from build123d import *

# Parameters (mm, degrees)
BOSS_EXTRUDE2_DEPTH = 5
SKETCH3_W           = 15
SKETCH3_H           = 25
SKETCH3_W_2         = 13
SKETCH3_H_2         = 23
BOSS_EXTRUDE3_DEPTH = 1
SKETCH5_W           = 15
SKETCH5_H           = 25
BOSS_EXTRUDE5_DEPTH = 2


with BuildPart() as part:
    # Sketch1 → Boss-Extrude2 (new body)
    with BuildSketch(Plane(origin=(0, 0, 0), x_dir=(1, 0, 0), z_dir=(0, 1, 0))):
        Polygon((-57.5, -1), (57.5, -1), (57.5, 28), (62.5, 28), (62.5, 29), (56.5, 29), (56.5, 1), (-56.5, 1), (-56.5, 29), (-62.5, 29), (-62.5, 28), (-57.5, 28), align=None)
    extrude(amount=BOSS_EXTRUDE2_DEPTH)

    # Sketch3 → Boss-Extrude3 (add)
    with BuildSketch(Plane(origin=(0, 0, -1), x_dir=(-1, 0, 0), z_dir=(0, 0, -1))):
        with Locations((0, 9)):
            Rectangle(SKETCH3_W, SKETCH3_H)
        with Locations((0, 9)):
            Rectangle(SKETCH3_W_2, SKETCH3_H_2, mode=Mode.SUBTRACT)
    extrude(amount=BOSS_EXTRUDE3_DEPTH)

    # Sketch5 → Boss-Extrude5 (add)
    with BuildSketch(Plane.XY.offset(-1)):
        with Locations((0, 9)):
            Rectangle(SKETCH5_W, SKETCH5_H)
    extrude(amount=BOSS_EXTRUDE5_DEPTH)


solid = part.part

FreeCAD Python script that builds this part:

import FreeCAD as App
import Part
import Sketcher


def add_polygon(sketch, points):
    """Adds a closed chain of lines whose ends are joined by coincident constraints."""
    first, n = sketch.GeometryCount, len(points)
    for a, b in zip(points, points[1:] + points[:1]):
        sketch.addGeometry(Part.LineSegment(App.Vector(*a, 0), App.Vector(*b, 0)), False)
    for i in range(n):
        sketch.addConstraint(Sketcher.Constraint("Coincident", first + i, 2, first + (i + 1) % n, 1))

doc = App.newDocument("Part")
params = doc.addObject("Spreadsheet::Sheet", "Params")
for row, (alias, value) in enumerate([
    ("sketch1_width", "115 mm"),
    ("sketch1_width2", "5 mm"),
    ("sketch1_width3", "6 mm"),
    ("sketch1_height", "29 mm"),
    ("sketch1_height2", "1 mm"),
    ("pad1_length", "5 mm"),
    ("sketch2_width", "15 mm"),
    ("sketch2_width2", "13 mm"),
    ("sketch2_height", "25 mm"),
    ("sketch2_height2", "23 mm"),
    ("pad2_length", "1 mm"),
    ("sketch3_width", "15 mm"),
    ("sketch3_height", "25 mm"),
    ("pad3_length", "2 mm"),
], start=1):
    params.set(f"A{row}", alias)
    params.set(f"B{row}", "=" + value)
    params.setAlias(f"B{row}", alias)

body = doc.addObject("PartDesign::Body", "Body")

# Sketch on XZ plane
sketch1 = body.newObject("Sketcher::SketchObject", "Sketch")
sketch1.AttachmentSupport = (doc.getObject("XZ_Plane"), [""])
sketch1.MapMode = "FlatFace"
add_polygon(sketch1, [(-57.5, 1), (57.5, 1), (57.5, -28), (62.5, -28), (62.5, -29), (56.5, -29), (56.5, -1), (-56.5, -1), (-56.5, -29), (-62.5, -29), (-62.5, -28), (-57.5, -28)])  # lines 0-11
sketch1.addConstraint([
    Sketcher.Constraint("Horizontal", 0),
    Sketcher.Constraint("Vertical", 1),
    Sketcher.Constraint("Horizontal", 2),
    Sketcher.Constraint("Vertical", 3),
    Sketcher.Constraint("Horizontal", 4),
    Sketcher.Constraint("Vertical", 5),
    Sketcher.Constraint("Horizontal", 6),
    Sketcher.Constraint("Vertical", 7),
    Sketcher.Constraint("Horizontal", 8),
    Sketcher.Constraint("Vertical", 9),
    Sketcher.Constraint("Horizontal", 10),
    Sketcher.Constraint("Vertical", 11),
    Sketcher.Constraint("Symmetric", 4, 2, 7, 2, -2),
    Sketcher.Constraint("Symmetric", 2, 2, 9, 2, -2),
    Sketcher.Constraint("Equal", 2, 10),
    Sketcher.Constraint("DistanceX", 0, 1, 0, 2, 115.0),
    Sketcher.Constraint("DistanceX", 2, 1, 2, 2, 5.0),
    Sketcher.Constraint("DistanceX", 4, 2, 4, 1, 6.0),
    Sketcher.Constraint("DistanceY", 1, 2, 1, 1, 29.0),
    Sketcher.Constraint("DistanceY", 3, 2, 3, 1, 1.0),
    Sketcher.Constraint("DistanceY", 5, 1, 5, 2, 28.0),
    Sketcher.Constraint("DistanceY", -1, 1, 0, 2, 1.0),
])
sketch1.setExpression("Constraints[27]", "Params.sketch1_width")
sketch1.setExpression("Constraints[28]", "Params.sketch1_width2")
sketch1.setExpression("Constraints[29]", "Params.sketch1_width3")
sketch1.setExpression("Constraints[30]", "Params.sketch1_height")
sketch1.setExpression("Constraints[31]", "Params.sketch1_height2")
pad1 = body.newObject("PartDesign::Pad", "Pad")
pad1.Profile = sketch1
pad1.setExpression("Length", "Params.pad1_length")
pad1.Reversed = True

# Sketch on XY plane
sketch2 = body.newObject("Sketcher::SketchObject", "Sketch001")
sketch2.AttachmentSupport = (doc.getObject("XY_Plane"), [""])
sketch2.MapMode = "FlatFace"
sketch2.AttachmentOffset = App.Placement(App.Vector(0, 0, -1), App.Rotation())
add_polygon(sketch2, [(7.5, 21.5), (7.5, -3.5), (-7.5, -3.5), (-7.5, 21.5)])  # lines 0-3
add_polygon(sketch2, [(-6.5, -2.5), (6.5, -2.5), (6.5, 20.5), (-6.5, 20.5)])  # lines 4-7
sketch2.addConstraint([
    Sketcher.Constraint("Vertical", 0),
    Sketcher.Constraint("Horizontal", 1),
    Sketcher.Constraint("Vertical", 2),
    Sketcher.Constraint("Horizontal", 3),
    Sketcher.Constraint("Horizontal", 4),
    Sketcher.Constraint("Vertical", 5),
    Sketcher.Constraint("Horizontal", 6),
    Sketcher.Constraint("Vertical", 7),
    Sketcher.Constraint("DistanceX", 1, 2, 1, 1, 15.0),
    Sketcher.Constraint("DistanceX", 4, 1, 4, 2, 13.0),
    Sketcher.Constraint("DistanceY", 0, 2, 0, 1, 25.0),
    Sketcher.Constraint("DistanceY", 5, 1, 5, 2, 23.0),
    Sketcher.Constraint("DistanceX", 4, 2, 0, 2, 1.0),
    Sketcher.Constraint("DistanceY", 0, 2, 4, 2, 1.0),
    Sketcher.Constraint("DistanceX", -1, 1, 0, 2, 7.5),
    Sketcher.Constraint("DistanceY", 0, 2, -1, 1, 3.5),
])
sketch2.setExpression("Constraints[16]", "Params.sketch2_width")
sketch2.setExpression("Constraints[17]", "Params.sketch2_width2")
sketch2.setExpression("Constraints[18]", "Params.sketch2_height")
sketch2.setExpression("Constraints[19]", "Params.sketch2_height2")
pad2 = body.newObject("PartDesign::Pad", "Pad001")
pad2.Profile = sketch2
pad2.setExpression("Length", "Params.pad2_length")
pad2.Reversed = True

# Sketch on XY plane
sketch3 = body.newObject("Sketcher::SketchObject", "Sketch002")
sketch3.AttachmentSupport = (doc.getObject("XY_Plane"), [""])
sketch3.MapMode = "FlatFace"
sketch3.AttachmentOffset = App.Placement(App.Vector(0, 0, -1), App.Rotation())
add_polygon(sketch3, [(-7.5, 21.5), (-7.5, -3.5), (7.5, -3.5), (7.5, 21.5)])  # lines 0-3
sketch3.addConstraint([
    Sketcher.Constraint("Vertical", 0),
    Sketcher.Constraint("Horizontal", 1),
    Sketcher.Constraint("Vertical", 2),
    Sketcher.Constraint("Horizontal", 3),
    Sketcher.Constraint("DistanceX", 1, 1, 1, 2, 15.0),
    Sketcher.Constraint("DistanceY", 0, 2, 0, 1, 25.0),
    Sketcher.Constraint("DistanceX", 0, 2, -1, 1, 7.5),
    Sketcher.Constraint("DistanceY", 0, 2, -1, 1, 3.5),
])
sketch3.setExpression("Constraints[8]", "Params.sketch3_width")
sketch3.setExpression("Constraints[9]", "Params.sketch3_height")
pad3 = body.newObject("PartDesign::Pad", "Pad002")
pad3.Profile = sketch3
pad3.setExpression("Length", "Params.pad3_length")

doc.recompute()
